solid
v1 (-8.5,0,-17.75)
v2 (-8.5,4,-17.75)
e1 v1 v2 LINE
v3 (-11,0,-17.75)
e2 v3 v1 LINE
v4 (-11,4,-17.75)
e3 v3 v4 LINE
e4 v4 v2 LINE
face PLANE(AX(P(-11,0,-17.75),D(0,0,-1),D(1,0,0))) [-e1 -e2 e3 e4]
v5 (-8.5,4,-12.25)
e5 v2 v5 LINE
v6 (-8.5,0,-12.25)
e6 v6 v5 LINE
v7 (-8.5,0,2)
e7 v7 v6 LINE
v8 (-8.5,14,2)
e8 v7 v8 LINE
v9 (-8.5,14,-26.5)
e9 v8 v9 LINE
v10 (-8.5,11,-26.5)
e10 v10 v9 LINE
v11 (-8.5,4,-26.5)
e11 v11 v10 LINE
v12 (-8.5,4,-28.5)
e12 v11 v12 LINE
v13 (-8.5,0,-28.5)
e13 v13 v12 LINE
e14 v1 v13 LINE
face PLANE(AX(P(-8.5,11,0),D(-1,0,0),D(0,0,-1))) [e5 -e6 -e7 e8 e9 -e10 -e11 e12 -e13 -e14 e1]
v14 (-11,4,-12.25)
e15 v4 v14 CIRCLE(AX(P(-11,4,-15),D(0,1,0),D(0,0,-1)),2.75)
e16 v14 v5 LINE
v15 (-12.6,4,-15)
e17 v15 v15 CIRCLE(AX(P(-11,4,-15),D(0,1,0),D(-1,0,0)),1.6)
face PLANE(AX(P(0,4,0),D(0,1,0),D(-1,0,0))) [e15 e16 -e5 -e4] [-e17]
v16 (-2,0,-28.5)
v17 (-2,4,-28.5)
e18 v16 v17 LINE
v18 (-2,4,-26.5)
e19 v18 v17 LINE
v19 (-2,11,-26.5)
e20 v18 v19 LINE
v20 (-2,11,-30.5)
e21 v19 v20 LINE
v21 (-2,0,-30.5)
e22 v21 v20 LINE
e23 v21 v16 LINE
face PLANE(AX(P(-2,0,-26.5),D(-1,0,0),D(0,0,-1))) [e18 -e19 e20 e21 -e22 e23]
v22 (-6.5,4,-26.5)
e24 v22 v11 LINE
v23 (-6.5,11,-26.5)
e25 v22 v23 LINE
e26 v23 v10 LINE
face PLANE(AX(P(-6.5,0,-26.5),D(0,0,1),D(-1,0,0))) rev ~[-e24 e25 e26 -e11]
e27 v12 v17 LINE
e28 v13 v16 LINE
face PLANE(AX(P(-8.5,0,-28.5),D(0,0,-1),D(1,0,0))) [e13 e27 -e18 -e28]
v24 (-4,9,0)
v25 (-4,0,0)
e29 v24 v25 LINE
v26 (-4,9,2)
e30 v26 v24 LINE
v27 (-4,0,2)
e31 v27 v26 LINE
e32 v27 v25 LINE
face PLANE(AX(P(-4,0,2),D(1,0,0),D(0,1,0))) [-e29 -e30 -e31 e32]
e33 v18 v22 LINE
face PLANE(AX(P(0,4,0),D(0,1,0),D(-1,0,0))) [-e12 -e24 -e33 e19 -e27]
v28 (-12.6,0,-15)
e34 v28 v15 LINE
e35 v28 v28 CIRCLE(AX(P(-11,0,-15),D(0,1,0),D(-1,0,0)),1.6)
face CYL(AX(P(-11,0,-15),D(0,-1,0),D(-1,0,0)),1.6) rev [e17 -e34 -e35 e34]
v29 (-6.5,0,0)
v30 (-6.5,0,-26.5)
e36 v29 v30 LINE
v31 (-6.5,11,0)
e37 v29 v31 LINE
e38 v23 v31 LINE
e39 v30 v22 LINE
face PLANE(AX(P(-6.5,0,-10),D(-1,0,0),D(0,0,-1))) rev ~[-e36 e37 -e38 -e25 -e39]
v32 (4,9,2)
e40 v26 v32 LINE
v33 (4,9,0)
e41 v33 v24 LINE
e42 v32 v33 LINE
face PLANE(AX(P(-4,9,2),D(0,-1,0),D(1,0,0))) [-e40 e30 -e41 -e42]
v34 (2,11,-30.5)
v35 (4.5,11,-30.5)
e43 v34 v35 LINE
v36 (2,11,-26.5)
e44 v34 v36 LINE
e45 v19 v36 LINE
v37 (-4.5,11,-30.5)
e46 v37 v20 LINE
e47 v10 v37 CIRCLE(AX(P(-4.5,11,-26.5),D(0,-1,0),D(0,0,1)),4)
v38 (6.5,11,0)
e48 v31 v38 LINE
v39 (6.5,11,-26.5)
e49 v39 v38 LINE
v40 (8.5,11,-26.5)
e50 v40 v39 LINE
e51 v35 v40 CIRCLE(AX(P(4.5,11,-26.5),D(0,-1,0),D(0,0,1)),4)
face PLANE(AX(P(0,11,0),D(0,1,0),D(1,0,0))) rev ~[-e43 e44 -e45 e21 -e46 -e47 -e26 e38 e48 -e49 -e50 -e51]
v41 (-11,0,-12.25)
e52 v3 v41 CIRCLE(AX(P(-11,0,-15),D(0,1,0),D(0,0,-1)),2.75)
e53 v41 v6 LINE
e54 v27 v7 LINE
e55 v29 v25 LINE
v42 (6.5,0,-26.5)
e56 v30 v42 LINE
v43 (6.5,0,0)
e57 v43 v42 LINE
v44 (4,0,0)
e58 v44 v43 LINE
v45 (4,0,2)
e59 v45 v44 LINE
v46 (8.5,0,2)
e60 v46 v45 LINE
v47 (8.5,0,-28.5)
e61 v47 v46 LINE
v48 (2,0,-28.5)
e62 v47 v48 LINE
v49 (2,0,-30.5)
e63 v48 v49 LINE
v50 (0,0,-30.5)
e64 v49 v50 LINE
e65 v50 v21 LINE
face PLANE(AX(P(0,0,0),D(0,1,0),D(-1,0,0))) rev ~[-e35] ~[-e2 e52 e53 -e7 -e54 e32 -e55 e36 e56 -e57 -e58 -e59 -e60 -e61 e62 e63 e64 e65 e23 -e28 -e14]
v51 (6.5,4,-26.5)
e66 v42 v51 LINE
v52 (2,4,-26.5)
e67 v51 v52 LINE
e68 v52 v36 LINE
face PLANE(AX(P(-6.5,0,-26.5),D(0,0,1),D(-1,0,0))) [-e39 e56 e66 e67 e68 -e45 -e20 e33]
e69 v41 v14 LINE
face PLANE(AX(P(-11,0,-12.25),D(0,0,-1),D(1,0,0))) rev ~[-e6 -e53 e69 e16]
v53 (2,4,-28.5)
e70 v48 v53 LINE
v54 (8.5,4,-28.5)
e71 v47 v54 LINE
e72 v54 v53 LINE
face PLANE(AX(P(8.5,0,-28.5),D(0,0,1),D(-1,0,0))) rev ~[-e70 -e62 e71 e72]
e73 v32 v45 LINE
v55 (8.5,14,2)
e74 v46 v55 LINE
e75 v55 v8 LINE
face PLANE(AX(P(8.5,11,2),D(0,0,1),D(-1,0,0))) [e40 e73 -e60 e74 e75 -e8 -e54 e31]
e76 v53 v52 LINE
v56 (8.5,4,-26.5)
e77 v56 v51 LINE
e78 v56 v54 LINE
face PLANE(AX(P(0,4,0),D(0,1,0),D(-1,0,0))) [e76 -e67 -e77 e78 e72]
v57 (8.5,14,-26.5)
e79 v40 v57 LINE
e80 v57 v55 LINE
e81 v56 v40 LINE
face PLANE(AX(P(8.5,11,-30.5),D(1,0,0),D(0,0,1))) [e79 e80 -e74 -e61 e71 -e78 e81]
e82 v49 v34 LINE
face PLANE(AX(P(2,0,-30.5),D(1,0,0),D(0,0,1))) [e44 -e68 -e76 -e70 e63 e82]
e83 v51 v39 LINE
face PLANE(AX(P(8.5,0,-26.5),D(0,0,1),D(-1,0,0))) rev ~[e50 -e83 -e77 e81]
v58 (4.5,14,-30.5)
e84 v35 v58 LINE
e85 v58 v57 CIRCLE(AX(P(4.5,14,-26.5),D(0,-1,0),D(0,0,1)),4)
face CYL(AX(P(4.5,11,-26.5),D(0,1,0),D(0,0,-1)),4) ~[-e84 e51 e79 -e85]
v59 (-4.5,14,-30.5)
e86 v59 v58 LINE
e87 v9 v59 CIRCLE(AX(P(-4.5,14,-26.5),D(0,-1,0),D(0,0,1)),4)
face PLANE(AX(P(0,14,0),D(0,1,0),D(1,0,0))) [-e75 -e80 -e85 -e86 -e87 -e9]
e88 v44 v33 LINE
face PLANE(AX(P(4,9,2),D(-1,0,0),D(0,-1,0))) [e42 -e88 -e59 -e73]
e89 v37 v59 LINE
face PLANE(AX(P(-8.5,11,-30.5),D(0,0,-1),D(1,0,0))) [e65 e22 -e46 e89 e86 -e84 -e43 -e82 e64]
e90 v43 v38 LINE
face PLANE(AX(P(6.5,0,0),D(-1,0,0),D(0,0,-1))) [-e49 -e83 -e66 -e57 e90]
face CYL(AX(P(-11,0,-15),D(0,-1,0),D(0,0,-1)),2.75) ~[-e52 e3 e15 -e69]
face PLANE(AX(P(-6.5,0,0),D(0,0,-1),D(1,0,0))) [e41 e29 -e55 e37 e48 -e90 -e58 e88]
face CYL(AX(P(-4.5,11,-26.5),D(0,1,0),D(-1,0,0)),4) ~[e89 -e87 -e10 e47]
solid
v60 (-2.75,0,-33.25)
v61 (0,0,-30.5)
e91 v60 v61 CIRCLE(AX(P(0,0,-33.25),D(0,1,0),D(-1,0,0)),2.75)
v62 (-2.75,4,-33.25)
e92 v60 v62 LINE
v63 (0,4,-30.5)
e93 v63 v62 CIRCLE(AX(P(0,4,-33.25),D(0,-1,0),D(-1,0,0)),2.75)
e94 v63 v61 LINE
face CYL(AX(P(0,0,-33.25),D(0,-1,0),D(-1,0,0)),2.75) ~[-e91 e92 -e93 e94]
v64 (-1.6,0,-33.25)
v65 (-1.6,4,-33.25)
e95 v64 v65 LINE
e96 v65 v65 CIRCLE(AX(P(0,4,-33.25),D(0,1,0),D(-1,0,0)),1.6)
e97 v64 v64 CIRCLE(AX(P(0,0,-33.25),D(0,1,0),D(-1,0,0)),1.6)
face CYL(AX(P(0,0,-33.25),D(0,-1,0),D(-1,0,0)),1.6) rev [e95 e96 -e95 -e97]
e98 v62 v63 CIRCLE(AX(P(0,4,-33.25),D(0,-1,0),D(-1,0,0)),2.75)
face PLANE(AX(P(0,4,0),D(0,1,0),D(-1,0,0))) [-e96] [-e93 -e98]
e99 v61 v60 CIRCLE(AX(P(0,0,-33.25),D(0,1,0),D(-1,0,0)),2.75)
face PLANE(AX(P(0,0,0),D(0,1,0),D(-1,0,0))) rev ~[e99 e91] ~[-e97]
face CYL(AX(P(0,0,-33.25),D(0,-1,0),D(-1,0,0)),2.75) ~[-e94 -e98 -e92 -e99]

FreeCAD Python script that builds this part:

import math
import FreeCAD as App
import Part
import Sketcher


def edges_at(feature, points):
    """Names of the edges that pass closest to the given points."""
    edges = feature.Shape.Edges
    near = lambda p: min(range(len(edges)), key=lambda i: edges[i].distToShape(Part.Vertex(*p))[0])
    return sorted({f"Edge{near(p) + 1}" for p in points})


def add_polygon(sketch, points):
    """Adds a closed chain of lines whose ends are joined by coincident constraints."""
    first, n = sketch.GeometryCount, len(points)
    for a, b in zip(points, points[1:] + points[:1]):
        sketch.addGeometry(Part.LineSegment(App.Vector(*a, 0), App.Vector(*b, 0)), False)
    for i in range(n):
        sketch.addConstraint(Sketcher.Constraint("Coincident", first + i, 2, first + (i + 1) % n, 1))

doc = App.newDocument("Part")
params = doc.addObject("Spreadsheet::Sheet", "Params")
for row, (alias, value) in enumerate([
    ("sketch1_width", "2 mm"),
    ("sketch1_width2", "13 mm"),
    ("sketch1_width3", "4 mm"),
    ("sketch1_height", "26.5 mm"),
    ("pad1_length", "11 mm"),
    ("sketch2_diameter", "3.2 mm"),
    ("sketch2_diameter2", "5.5 mm"),
    ("sketch2_height", "2 mm"),
    ("sketch2_width", "6.5 mm"),
    ("sketch2_width2", "2.5 mm"),
    ("pad2_length", "4 mm"),
    ("sketch3_width", "17 mm"),
    ("sketch3_height", "32.5 mm"),
    ("pad3_length", "3 mm"),
    ("fillet_radius", "4 mm"),
    ("sketch4_width", "8 mm"),
    ("sketch4_height", "9 mm"),
    ("pocket1_length", "3 mm"),
], start=1):
    params.set(f"A{row}", alias)
    params.set(f"B{row}", "=" + value)
    params.setAlias(f"B{row}", alias)

body = doc.addObject("PartDesign::Body", "Body")
body.AllowCompound = True

# Sketch on XZ plane
sketch1 = body.newObject("Sketcher::SketchObject", "Sketch")
sketch1.AttachmentSupport = (doc.getObject("XZ_Plane"), [""])
sketch1.MapMode = "FlatFace"
add_polygon(sketch1, [(-6.5, -26.5), (-8.5, -26.5), (-8.5, 2), (8.5, 2), (8.5, -26.5), (6.5, -26.5), (6.5, 0), (-6.5, 0)])  # lines 0-7
add_polygon(sketch1, [(-2, -30.5), (-2, -26.5), (2, -26.5), (2, -30.5)])  # lines 8-11
sketch1.addConstraint([
    Sketcher.Constraint("Horizontal", 0),
    Sketcher.Constraint("Vertical", 1),
    Sketcher.Constraint("Horizontal", 2),
    Sketcher.Constraint("Vertical", 3),
    Sketcher.Constraint("Horizontal", 4),
    Sketcher.Constraint("Vertical", 5),
    Sketcher.Constraint("Horizontal", 6),
    Sketcher.Constraint("Vertical", 7),
    Sketcher.Constraint("Vertical", 8),
    Sketcher.Constraint("Horizontal", 9),
    Sketcher.Constraint("Vertical", 10),
    Sketcher.Constraint("Horizontal", 11),
    Sketcher.Constraint("Symmetric", 5, 2, 6, 2, -1, 1),
    Sketcher.Constraint("Symmetric", 0, 2, 3, 2, -2),
    Sketcher.Constraint("Horizontal", 7, 2, 8, 2),
    Sketcher.Constraint("Equal", 11, 8),
    Sketcher.Constraint("DistanceX", 0, 2, 0, 1, 2.0),
    Sketcher.Constraint("DistanceX", 6, 2, 6, 1, 13.0),
    Sketcher.Constraint("DistanceX", 9, 1, 9, 2, 4.0),
    Sketcher.Constraint("DistanceY", 5, 1, 5, 2, 26.5),
    Sketcher.Constraint("DistanceY", -1, 1, 1, 2, 2.0),
    Sketcher.Constraint("DistanceX", 8, 2, -1, 1, 2.0),
])
sketch1.setExpression("Constraints[28]", "Params.sketch1_width")
sketch1.setExpression("Constraints[29]", "Params.sketch1_width2")
sketch1.setExpression("Constraints[30]", "Params.sketch1_width3")
sketch1.setExpression("Constraints[31]", "Params.sketch1_height")
pad1 = body.newObject("PartDesign::Pad", "Pad")
pad1.Profile = sketch1
pad1.setExpression("Length", "Params.pad1_length")
pad1.Reversed = True

# Sketch on XZ plane
sketch2 = body.newObject("Sketcher::SketchObject", "Sketch001")
sketch2.AttachmentSupport = (doc.getObject("XZ_Plane"), [""])
sketch2.MapMode = "FlatFace"
add_polygon(sketch2, [(-8.5, -26.5), (-2, -26.5), (-2, -28.5), (-8.5, -28.5)])  # lines 0-3
add_polygon(sketch2, [(2, -28.5), (2, -26.5), (8.5, -26.5), (8.5, -28.5)])  # lines 4-7
sketch2.addGeometry(Part.LineSegment(App.Vector(-8.5, -12.25, 0), App.Vector(-8.5, -17.75, 0)), False)  # 8
sketch2.addGeometry(Part.LineSegment(App.Vector(-8.5, -17.75, 0), App.Vector(-11, -17.75, 0)), False)  # 9
sketch2.addGeometry(Part.ArcOfCircle(Part.Circle(App.Vector(-11, -15, 0), App.Vector(0, 0, 1), 2.75), math.radians(90), math.radians(270)), False)  # 10
sketch2.addGeometry(Part.LineSegment(App.Vector(-11, -12.25, 0), App.Vector(-8.5, -12.25, 0)), False)  # 11
sketch2.addGeometry(Part.Circle(App.Vector(-11, -15, 0), App.Vector(0, 0, 1), 1.6), False)  # 12
sketch2.addGeometry(Part.Circle(App.Vector(0, -33.25, 0), App.Vector(0, 0, 1), 2.75), False)  # 13
sketch2.addGeometry(Part.Circle(App.Vector(0, -33.25, 0), App.Vector(0, 0, 1), 1.6), False)  # 14
sketch2.addConstraint([
    Sketcher.Constraint("Coincident", 8, 2, 9, 1),
    Sketcher.Constraint("Tangent", 9, 2, 10, 2),
    Sketcher.Constraint("Tangent", 10, 1, 11, 1),
    Sketcher.Constraint("Coincident", 11, 2, 8, 1),
    Sketcher.Constraint("Horizontal", 0),
    Sketcher.Constraint("Vertical", 1),
    Sketcher.Constraint("Horizontal", 2),
    Sketcher.Constraint("Vertical", 3),
    Sketcher.Constraint("Vertical", 4),
    Sketcher.Constraint("Horizontal", 5),
    Sketcher.Constraint("Vertical", 6),
    Sketcher.Constraint("Horizontal", 7),
    Sketcher.Constraint("Vertical", 8),
    Sketcher.Constraint("Horizontal", 9),
    Sketcher.Constraint("Horizontal", 11),
    Sketcher.Constraint("Coincident", 12, 3, 10, 3),
    Sketcher.Constraint("Coincident", 14, 3, 13, 3),
    Sketcher.Constraint("Equal", 10, 13),
    Sketcher.Constraint("Equal", 12, 14),
    Sketcher.Constraint("Symmetric", 0, 2, 4, 2, -2),
    Sketcher.Constraint("Symmetric", 2, 2, 6, 2, -2),
    Sketcher.Constraint("PointOnObject", 13, 3, -2),
    Sketcher.Constraint("Vertical", 3, 2, 8, 2),
    Sketcher.Constraint("Diameter", 12, 3.2),
    Sketcher.Constraint("Diameter", 13, 5.5),
    Sketcher.Constraint("DistanceY", 1, 2, 1, 1, 2.0),
    Sketcher.Constraint("DistanceY", 10, 3, -1, 1, 15.0),
    Sketcher.Constraint("DistanceX", 0, 2, -1, 1, 2.0),
    Sketcher.Constraint("DistanceY", 0, 2, -1, 1, 26.5),
    Sketcher.Constraint("DistanceX", 0, 1, 0, 2, 6.5),
    Sketcher.Constraint("DistanceX", 9, 2, 9, 1, 2.5),
    Sketcher.Constraint("DistanceY", 13, 3, -1, 1, 33.25),
])
sketch2.setExpression("Constraints[31]", "Params.sketch2_diameter")
sketch2.setExpression("Constraints[32]", "Params.sketch2_diameter2")
sketch2.setExpression("Constraints[33]", "Params.sketch2_height")
sketch2.setExpression("Constraints[37]", "Params.sketch2_width")
sketch2.setExpression("Constraints[38]", "Params.sketch2_width2")
pad2 = body.newObject("PartDesign::Pad", "Pad001")
pad2.Profile = sketch2
pad2.setExpression("Length", "Params.pad2_length")
pad2.Reversed = True

# Sketch on XZ plane
sketch3 = body.newObject("Sketcher::SketchObject", "Sketch002")
sketch3.AttachmentSupport = (doc.getObject("XZ_Plane"), [""])
sketch3.MapMode = "FlatFace"
sketch3.AttachmentOffset = App.Placement(App.Vector(0, 0, -11), App.Rotation())
add_polygon(sketch3, [(-8.5, -30.5), (-8.5, 2), (8.5, 2), (8.5, -30.5)])  # lines 0-3
sketch3.addConstraint([
    Sketcher.Constraint("Vertical", 0),
    Sketcher.Constraint("Horizontal", 1),
    Sketcher.Constraint("Vertical", 2),
    Sketcher.Constraint("Horizontal", 3),
    Sketcher.Constraint("DistanceX", 1, 1, 1, 2, 17.0),
    Sketcher.Constraint("DistanceY", 0, 1, 0, 2, 32.5),
    Sketcher.Constraint("DistanceY", -1, 1, 0, 2, 2.0),
    Sketcher.Constraint("DistanceX", 0, 2, -1, 1, 8.5),
])
sketch3.setExpression("Constraints[8]", "Params.sketch3_width")
sketch3.setExpression("Constraints[9]", "Params.sketch3_height")
pad3 = body.newObject("PartDesign::Pad", "Pad002")
pad3.Profile = sketch3
pad3.setExpression("Length", "Params.pad3_length")
pad3.Reversed = True
doc.recompute()

fillet = body.newObject("PartDesign::Fillet", "Fillet")
fillet.Base = (pad3, edges_at(pad3, [(8.5, 12.5, -30.5), (-8.5, 12.5, -30.5)]))
fillet.setExpression("Radius", "Params.fillet_radius")

# Sketch on XY plane
sketch4 = body.newObject("Sketcher::SketchObject", "Sketch003")
sketch4.AttachmentSupport = (doc.getObject("XY_Plane"), [""])
sketch4.MapMode = "FlatFace"
sketch4.AttachmentOffset = App.Placement(App.Vector(0, 0, 2), App.Rotation())
add_polygon(sketch4, [(-4, 9), (-4, 0), (4, 0), (4, 9)])  # lines 0-3
sketch4.addConstraint([
    Sketcher.Constraint("Vertical", 0),
    Sketcher.Constraint("Horizontal", 1),
    Sketcher.Constraint("Vertical", 2),
    Sketcher.Constraint("Horizontal", 3),
    Sketcher.Constraint("Symmetric", 0, 2, 1, 2, -1, 1),
    Sketcher.Constraint("DistanceX", 1, 1, 1, 2, 8.0),
    Sketcher.Constraint("DistanceY", 0, 2, 0, 1, 9.0),
])
sketch4.setExpression("Constraints[9]", "Params.sketch4_width")
sketch4.setExpression("Constraints[10]", "Params.sketch4_height")
pocket1 = body.newObject("PartDesign::Pocket", "Pocket")
pocket1.Profile = sketch4
pocket1.setExpression("Length", "Params.pocket1_length")

doc.recompute()
